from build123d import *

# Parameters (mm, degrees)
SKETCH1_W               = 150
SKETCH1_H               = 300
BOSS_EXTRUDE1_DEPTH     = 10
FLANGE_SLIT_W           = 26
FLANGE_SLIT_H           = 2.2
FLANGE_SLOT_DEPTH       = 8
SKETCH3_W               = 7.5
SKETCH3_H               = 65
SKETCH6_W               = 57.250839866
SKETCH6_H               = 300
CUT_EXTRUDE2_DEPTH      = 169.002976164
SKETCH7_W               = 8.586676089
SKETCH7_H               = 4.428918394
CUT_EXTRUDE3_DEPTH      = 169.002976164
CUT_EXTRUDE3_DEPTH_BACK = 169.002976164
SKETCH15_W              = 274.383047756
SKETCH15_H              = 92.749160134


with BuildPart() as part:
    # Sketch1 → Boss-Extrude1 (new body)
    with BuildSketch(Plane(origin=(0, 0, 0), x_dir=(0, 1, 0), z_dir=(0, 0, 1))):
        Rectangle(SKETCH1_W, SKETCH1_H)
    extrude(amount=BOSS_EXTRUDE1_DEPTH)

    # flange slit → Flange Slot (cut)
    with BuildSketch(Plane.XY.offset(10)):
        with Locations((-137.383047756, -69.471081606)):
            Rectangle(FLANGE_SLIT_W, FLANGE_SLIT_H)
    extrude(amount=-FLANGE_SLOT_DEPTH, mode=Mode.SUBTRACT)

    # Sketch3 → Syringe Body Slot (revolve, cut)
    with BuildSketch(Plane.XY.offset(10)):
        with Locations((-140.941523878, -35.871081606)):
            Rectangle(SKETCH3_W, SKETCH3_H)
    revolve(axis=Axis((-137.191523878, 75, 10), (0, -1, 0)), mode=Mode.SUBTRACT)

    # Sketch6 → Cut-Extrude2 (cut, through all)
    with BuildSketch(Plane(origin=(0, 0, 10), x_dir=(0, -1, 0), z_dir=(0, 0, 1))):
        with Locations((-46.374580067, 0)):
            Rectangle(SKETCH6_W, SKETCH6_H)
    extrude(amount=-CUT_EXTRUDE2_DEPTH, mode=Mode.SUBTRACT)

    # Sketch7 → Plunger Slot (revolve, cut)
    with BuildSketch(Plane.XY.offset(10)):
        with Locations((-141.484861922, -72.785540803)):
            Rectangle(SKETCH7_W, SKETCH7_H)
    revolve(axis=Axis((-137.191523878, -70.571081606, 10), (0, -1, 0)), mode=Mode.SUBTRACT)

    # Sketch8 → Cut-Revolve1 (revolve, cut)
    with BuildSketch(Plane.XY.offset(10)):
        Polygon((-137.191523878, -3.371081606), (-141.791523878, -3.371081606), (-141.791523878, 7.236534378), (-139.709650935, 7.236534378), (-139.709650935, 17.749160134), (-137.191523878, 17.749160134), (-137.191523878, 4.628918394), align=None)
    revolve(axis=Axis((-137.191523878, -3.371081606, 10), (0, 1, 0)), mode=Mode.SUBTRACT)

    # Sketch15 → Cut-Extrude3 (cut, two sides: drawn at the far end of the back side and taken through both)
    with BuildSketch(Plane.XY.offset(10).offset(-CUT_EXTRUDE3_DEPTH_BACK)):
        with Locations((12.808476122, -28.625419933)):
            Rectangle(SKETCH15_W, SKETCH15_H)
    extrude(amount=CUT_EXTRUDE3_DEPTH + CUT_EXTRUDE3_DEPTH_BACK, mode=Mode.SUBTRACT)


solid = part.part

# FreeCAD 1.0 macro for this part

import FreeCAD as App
import Part
import Sketcher

V = App.Vector


def add_polygon(sketch, points):
    """Adds a closed chain of lines whose ends are joined by coincident constraints."""
    first, n = sketch.GeometryCount, len(points)
    for a, b in zip(points, points[1:] + points[:1]):
        sketch.addGeometry(Part.LineSegment(App.Vector(*a, 0), App.Vector(*b, 0)), False)
    for i in range(n):
        sketch.addConstraint(Sketcher.Constraint("Coincident", first + i, 2, first + (i + 1) % n, 1))

doc = App.newDocument("Part")
body = doc.addObject("PartDesign::Body", "Body")

sketch1 = body.newObject("Sketcher::SketchObject", "Sketch")
sketch1.AttachmentSupport = (doc.getObject("XY_Plane"), [""])
sketch1.MapMode = "FlatFace"
add_polygon(sketch1, [(-150, -75), (150, -75), (150, 75), (-150, 75)])
sketch1.addConstraint([
    Sketcher.Constraint("Horizontal", 0),
    Sketcher.Constraint("Vertical", 1),
    Sketcher.Constraint("Horizontal", 2),
    Sketcher.Constraint("Vertical", 3),
    Sketcher.Constraint("Symmetric", 0, 2, 2, 2, -1, 1),
    Sketcher.Constraint("DistanceX", 0, 1, 0, 2, 300.0),
    Sketcher.Constraint("DistanceY", 1, 1, 1, 2, 150.0),
])
pad1 = body.newObject("PartDesign::Pad", "Pad")
pad1.Profile = sketch1
pad1.Length = 10

sketch2 = body.newObject("Sketcher::SketchObject", "Sketch001")
sketch2.AttachmentSupport = (doc.getObject("XY_Plane"), [""])
sketch2.MapMode = "FlatFace"
sketch2.AttachmentOffset = App.Placement(V(0, 0, 10), App.Rotation())
add_polygon(sketch2, [(-150.4, -68.4), (-150.4, -70.6), (-124.4, -70.6), (-124.4, -68.4)])
sketch2.addConstraint([
    Sketcher.Constraint("Vertical", 0),
    Sketcher.Constraint("Horizontal", 1),
    Sketcher.Constraint("Vertical", 2),
    Sketcher.Constraint("Horizontal", 3),
    Sketcher.Constraint("DistanceX", 1, 1, 1, 2, 26.0),
    Sketcher.Constraint("DistanceY", 0, 2, 0, 1, 2.2),
    Sketcher.Constraint("DistanceY", 0, 2, -1, 1, 70.571082),
    Sketcher.Constraint("DistanceX", 0, 2, -1, 1, 150.383048),
])
pocket1 = body.newObject("PartDesign::Pocket", "Pocket")
pocket1.Profile = sketch2
pocket1.Length = 8

sketch3 = body.newObject("Sketcher::SketchObject", "Sketch002")
sketch3.AttachmentSupport = (doc.getObject("XY_Plane"), [""])
sketch3.MapMode = "FlatFace"
sketch3.AttachmentOffset = App.Placement(V(0, 0, 10), App.Rotation())
add_polygon(sketch3, [(-145, -3), (-145, -68), (-137, -68), (-137, -3)])
sketch3.addGeometry(Part.LineSegment(V(-137, -3, 0), V(-137, -68, 0)), True)
sketch3.addConstraint([
    Sketcher.Constraint("Vertical", 0),
    Sketcher.Constraint("Horizontal", 1),
    Sketcher.Constraint("Vertical", 2),
    Sketcher.Constraint("Horizontal", 3),
    Sketcher.Constraint("Vertical", 4),
    Sketcher.Constraint("Coincident", 4, 1, 2, 2),
    Sketcher.Constraint("Horizontal", 0, 2, 4, 2),
    Sketcher.Constraint("DistanceY", 0, 2, 0, 1, 65.0),
    Sketcher.Constraint("DistanceX", 1, 1, 1, 2, 7.5),
    Sketcher.Constraint("DistanceY", 0, 2, -1, 1, 68.371082),
    Sketcher.Constraint("DistanceX", 0, 2, -1, 1, 144.691524),
])
groove = body.newObject("PartDesign::Groove", "Groove")
groove.Profile = sketch3
groove.ReferenceAxis = (sketch3, ["Axis0"])
groove.Angle = 360

sketch4 = body.newObject("Sketcher::SketchObject", "Sketch003")
sketch4.AttachmentSupport = (doc.getObject("XY_Plane"), [""])
sketch4.MapMode = "FlatFace"
sketch4.AttachmentOffset = App.Placement(V(0, 0, 10), App.Rotation())
add_polygon(sketch4, [(150, 75), (-150, 75), (-150, 18), (150, 18)])
sketch4.addConstraint([
    Sketcher.Constraint("Horizontal", 0),
    Sketcher.Constraint("Vertical", 1),
    Sketcher.Constraint("Horizontal", 2),
    Sketcher.Constraint("Vertical", 3),
    Sketcher.Constraint("DistanceX", 0, 2, 0, 1, 300.0),
    Sketcher.Constraint("DistanceX", 0, 2, -1, 1, 150.0),
    Sketcher.Constraint("DistanceY", -1, 1, 0, 2, 75.0),
    Sketcher.Constraint("DistanceY", 1, 2, 1, 1, 57.25084),
])
pocket2 = body.newObject("PartDesign::Pocket", "Pocket001")
pocket2.Profile = sketch4
pocket2.Type = "ThroughAll"

sketch5 = body.newObject("Sketcher::SketchObject", "Sketch004")
sketch5.AttachmentSupport = (doc.getObject("XY_Plane"), [""])
sketch5.MapMode = "FlatFace"
sketch5.AttachmentOffset = App.Placement(V(0, 0, 10), App.Rotation())
add_polygon(sketch5, [(-145.8, -70.6), (-145.8, -75), (-137.2, -75), (-137.2, -70.6)])
sketch5.addGeometry(Part.LineSegment(V(-137.2, -70.6, 0), V(-137.2, -75, 0)), True)
sketch5.addConstraint([
    Sketcher.Constraint("Vertical", 0),
    Sketcher.Constraint("Horizontal", 1),
    Sketcher.Constraint("Vertical", 2),
    Sketcher.Constraint("Horizontal", 3),
    Sketcher.Constraint("Vertical", 4),
    Sketcher.Constraint("Coincident", 4, 1, 2, 2),
    Sketcher.Constraint("Horizontal", 0, 2, 4, 2),
    Sketcher.Constraint("DistanceY", 0, 2, -1, 1, 75.0),
    Sketcher.Constraint("DistanceY", 0, 2, 0, 1, 4.428918),
    Sketcher.Constraint("DistanceX", 0, 2, -1, 1, 145.7782),
    Sketcher.Constraint("DistanceX", 1, 1, 1, 2, 8.586676),
])
groove2 = body.newObject("PartDesign::Groove", "Groove001")
groove2.Profile = sketch5
groove2.ReferenceAxis = (sketch5, ["Axis0"])
groove2.Angle = 360

sketch6 = body.newObject("Sketcher::SketchObject", "Sketch005")
sketch6.AttachmentSupport = (doc.getObject("XY_Plane"), [""])
sketch6.MapMode = "FlatFace"
sketch6.AttachmentOffset = App.Placement(V(0, 0, 10), App.Rotation())
add_polygon(sketch6, [(-141.8, -3.4), (-137.2, -3.4), (-137.2, 17.7), (-139.7, 17.7), (-139.7, 7.2), (-141.8, 7.2)])
sketch6.addGeometry(Part.LineSegment(V(-137.2, -3.4, 0), V(-137.2, 17.7, 0)), True)
sketch6.addConstraint([
    Sketcher.Constraint("Horizontal", 0),
    Sketcher.Constraint("Vertical", 1),
    Sketcher.Constraint("Horizontal", 2),
    Sketcher.Constraint("Vertical", 3),
    Sketcher.Constraint("Horizontal", 4),
    Sketcher.Constraint("Vertical", 5),
    Sketcher.Constraint("Vertical", 6),
    Sketcher.Constraint("Coincident", 6, 1, 0, 2),
    Sketcher.Constraint("Horizontal", 2, 2, 6, 2),
    Sketcher.Constraint("DistanceX", 0, 1, 0, 2, 4.6),
    Sketcher.Constraint("DistanceY", 1, 1, 1, 2, 21.120242),
    Sketcher.Constraint("DistanceX", 2, 2, 2, 1, 2.518127),
    Sketcher.Constraint("DistanceY", 3, 2, 3, 1, 10.512626),
    Sketcher.Constraint("DistanceY", 0, 2, -1, 1, 3.371082),
    Sketcher.Constraint("DistanceX", 2, 2, -1, 1, 139.709651),
])
groove3 = body.newObject("PartDesign::Groove", "Groove002")
groove3.Profile = sketch6
groove3.ReferenceAxis = (sketch6, ["Axis0"])
groove3.Angle = 360

sketch7 = body.newObject("Sketcher::SketchObject", "Sketch006")
sketch7.AttachmentSupport = (doc.getObject("XY_Plane"), [""])
sketch7.MapMode = "FlatFace"
sketch7.AttachmentOffset = App.Placement(V(0, 0, 10), App.Rotation())
add_polygon(sketch7, [(-124, 18), (-124, -75), (150, -75), (150, 18)])
sketch7.addConstraint([
    Sketcher.Constraint("Vertical", 0),
    Sketcher.Constraint("Horizontal", 1),
    Sketcher.Constraint("Vertical", 2),
    Sketcher.Constraint("Horizontal", 3),
    Sketcher.Constraint("DistanceY", 0, 2, -1, 1, 75.0),
    Sketcher.Constraint("DistanceX", -1, 1, 1, 2, 150.0),
    Sketcher.Constraint("DistanceY", 0, 2, 0, 1, 92.74916),
    Sketcher.Constraint("DistanceX", 1, 1, 1, 2, 274.383048),
])
pocket3 = body.newObject("PartDesign::Pocket", "Pocket002")
pocket3.Profile = sketch7
pocket3.Type = "ThroughAll"
pocket3.Midplane = True

doc.recompute()
